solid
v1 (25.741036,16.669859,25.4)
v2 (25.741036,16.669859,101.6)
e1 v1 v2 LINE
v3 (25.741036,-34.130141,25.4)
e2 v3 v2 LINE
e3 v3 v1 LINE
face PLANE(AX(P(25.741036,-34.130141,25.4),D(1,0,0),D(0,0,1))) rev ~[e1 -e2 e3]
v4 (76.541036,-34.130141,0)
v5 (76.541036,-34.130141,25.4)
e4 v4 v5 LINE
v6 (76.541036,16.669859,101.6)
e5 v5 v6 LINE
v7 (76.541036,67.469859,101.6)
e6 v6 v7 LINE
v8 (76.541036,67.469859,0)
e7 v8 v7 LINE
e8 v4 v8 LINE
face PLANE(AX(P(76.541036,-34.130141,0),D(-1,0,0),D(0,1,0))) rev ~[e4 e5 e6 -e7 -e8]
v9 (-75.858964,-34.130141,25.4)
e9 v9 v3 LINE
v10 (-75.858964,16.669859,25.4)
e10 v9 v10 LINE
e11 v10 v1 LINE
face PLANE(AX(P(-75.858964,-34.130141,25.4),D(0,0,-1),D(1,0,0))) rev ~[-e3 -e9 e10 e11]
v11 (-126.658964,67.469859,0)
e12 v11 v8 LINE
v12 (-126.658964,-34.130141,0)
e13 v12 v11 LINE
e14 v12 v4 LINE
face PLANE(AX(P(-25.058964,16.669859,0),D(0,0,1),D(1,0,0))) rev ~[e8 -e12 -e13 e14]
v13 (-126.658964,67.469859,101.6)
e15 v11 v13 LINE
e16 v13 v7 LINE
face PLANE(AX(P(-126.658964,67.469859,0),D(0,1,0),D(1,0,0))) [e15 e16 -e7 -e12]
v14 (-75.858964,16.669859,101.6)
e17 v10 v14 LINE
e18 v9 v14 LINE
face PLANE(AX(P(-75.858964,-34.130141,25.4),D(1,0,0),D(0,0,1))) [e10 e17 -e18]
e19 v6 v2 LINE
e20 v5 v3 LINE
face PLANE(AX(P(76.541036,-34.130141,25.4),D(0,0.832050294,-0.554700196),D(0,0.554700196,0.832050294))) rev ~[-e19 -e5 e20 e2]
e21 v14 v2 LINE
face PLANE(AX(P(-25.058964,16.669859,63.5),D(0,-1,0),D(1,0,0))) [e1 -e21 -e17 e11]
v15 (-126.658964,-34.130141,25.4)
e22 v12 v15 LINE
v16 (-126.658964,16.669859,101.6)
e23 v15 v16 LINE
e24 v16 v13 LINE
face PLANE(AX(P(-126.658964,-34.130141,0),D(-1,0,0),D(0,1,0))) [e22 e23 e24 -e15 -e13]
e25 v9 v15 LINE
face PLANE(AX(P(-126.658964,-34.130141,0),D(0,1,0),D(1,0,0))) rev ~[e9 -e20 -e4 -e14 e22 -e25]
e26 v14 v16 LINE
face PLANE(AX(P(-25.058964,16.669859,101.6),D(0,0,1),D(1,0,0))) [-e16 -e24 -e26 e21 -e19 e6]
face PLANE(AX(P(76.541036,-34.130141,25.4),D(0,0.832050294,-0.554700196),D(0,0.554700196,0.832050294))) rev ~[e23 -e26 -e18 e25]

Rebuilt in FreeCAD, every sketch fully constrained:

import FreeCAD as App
import Part
import Sketcher
from FreeCAD import Vector
Q = App.Units.Quantity

doc = App.newDocument("Part")
params = doc.addObject("Spreadsheet::Sheet", "Params")
for row, (alias, value) in enumerate([
    ("sketch1_width", "8 in"),
    ("sketch1_height", "4 in"),
    ("pad1_length", "4 in"),
    ("sketch2_width", "4 in"),
    ("sketch2_height", "3 in"),
    ("pocket1_length", "2 in"),
    ("sketch3_width", "2 in"),
    ("sketch3_height", "3 in"),
    ("pocket2_length", "8 in"),
], start=1):
    params.set(f"A{row}", alias)
    params.set(f"B{row}", "=" + value)
    params.setAlias(f"B{row}", alias)

body = doc.addObject("PartDesign::Body", "Body")

sketch1 = body.newObject("Sketcher::SketchObject", "Sketch")
sketch1.AttachmentSupport = (doc.getObject("XY_Plane"), [""])
sketch1.MapMode = "FlatFace"
sketch1.addGeometry([
    Part.LineSegment(Vector(-126.658964, 67.469859, 0), Vector(-126.658964, -34.130141, 0)),
    Part.LineSegment(Vector(-126.658964, -34.130141, 0), Vector(76.541036, -34.130141, 0)),
    Part.LineSegment(Vector(76.541036, -34.130141, 0), Vector(76.541036, 67.469859, 0)),
    Part.LineSegment(Vector(76.541036, 67.469859, 0), Vector(-126.658964, 67.469859, 0)),
], False)
sketch1.addConstraint([
    Sketcher.Constraint("Coincident", 0, 2, 1, 1),
    Sketcher.Constraint("Coincident", 1, 2, 2, 1),
    Sketcher.Constraint("Coincident", 2, 2, 3, 1),
    Sketcher.Constraint("Coincident", 3, 2, 0, 1),
    Sketcher.Constraint("Vertical", 0),
    Sketcher.Constraint("Horizontal", 1),
    Sketcher.Constraint("Vertical", 2),
    Sketcher.Constraint("Horizontal", 3),
    Sketcher.Constraint("DistanceX", 1, 1, 1, 2, Q("8 in")),
    Sketcher.Constraint("DistanceY", 0, 2, 0, 1, Q("4 in")),
    Sketcher.Constraint("DistanceY", 0, 2, -1, 1, Q("34.130141 mm")),
    Sketcher.Constraint("DistanceX", 0, 2, -1, 1, Q("126.658964 mm")),
])
sketch1.setExpression("Constraints[8]", "Params.sketch1_width")
sketch1.setExpression("Constraints[9]", "Params.sketch1_height")
pad1 = body.newObject("PartDesign::Pad", "Pad")
pad1.Profile = sketch1
pad1.setExpression("Length", "Params.pad1_length")

sketch2 = body.newObject("Sketcher::SketchObject", "Sketch001")
sketch2.AttachmentSupport = (doc.getObject("XZ_Plane"), [""])
sketch2.MapMode = "FlatFace"
sketch2.AttachmentOffset = App.Placement(Vector(0, 0, 34.130141), App.Rotation())
sketch2.addGeometry([
    Part.LineSegment(Vector(-75.858964, 101.6, 0), Vector(-75.858964, 25.4, 0)),
    Part.LineSegment(Vector(-75.858964, 25.4, 0), Vector(25.741036, 25.4, 0)),
    Part.LineSegment(Vector(25.741036, 25.4, 0), Vector(25.741036, 101.6, 0)),
    Part.LineSegment(Vector(25.741036, 101.6, 0), Vector(-75.858964, 101.6, 0)),
], False)
sketch2.addConstraint([
    Sketcher.Constraint("Coincident", 0, 2, 1, 1),
    Sketcher.Constraint("Coincident", 1, 2, 2, 1),
    Sketcher.Constraint("Coincident", 2, 2, 3, 1),
    Sketcher.Constraint("Coincident", 3, 2, 0, 1),
    Sketcher.Constraint("Vertical", 0),
    Sketcher.Constraint("Horizontal", 1),
    Sketcher.Constraint("Vertical", 2),
    Sketcher.Constraint("Horizontal", 3),
    Sketcher.Constraint("DistanceX", 1, 1, 1, 2, Q("4 in")),
    Sketcher.Constraint("DistanceY", 0, 2, 0, 1, Q("3 in")),
    Sketcher.Constraint("DistanceY", -1, 1, 0, 2, Q("1 in")),
    Sketcher.Constraint("DistanceX", 0, 2, -1, 1, Q("75.858964 mm")),
])
sketch2.setExpression("Constraints[8]", "Params.sketch2_width")
sketch2.setExpression("Constraints[9]", "Params.sketch2_height")
pocket1 = body.newObject("PartDesign::Pocket", "Pocket")
pocket1.Profile = sketch2
pocket1.setExpression("Length", "Params.pocket1_length")

sketch3 = body.newObject("Sketcher::SketchObject", "Sketch002")
sketch3.AttachmentSupport = (doc.getObject("YZ_Plane"), [""])
sketch3.MapMode = "FlatFace"
sketch3.AttachmentOffset = App.Placement(Vector(0, 0, 76.541036), App.Rotation())
sketch3.addGeometry([
    Part.LineSegment(Vector(-34.130141, 101.6, 0), Vector(-34.130141, 25.4, 0)),
    Part.LineSegment(Vector(-34.130141, 25.4, 0), Vector(16.669859, 101.6, 0)),
    Part.LineSegment(Vector(16.669859, 101.6, 0), Vector(-34.130141, 101.6, 0)),
], False)
sketch3.addConstraint([
    Sketcher.Constraint("Coincident", 0, 2, 1, 1),
    Sketcher.Constraint("Coincident", 1, 2, 2, 1),
    Sketcher.Constraint("Coincident", 2, 2, 0, 1),
    Sketcher.Constraint("Vertical", 0),
    Sketcher.Constraint("Horizontal", 2),
    Sketcher.Constraint("DistanceX", 2, 2, 2, 1, Q("2 in")),
    Sketcher.Constraint("DistanceY", 0, 2, 0, 1, Q("3 in")),
    Sketcher.Constraint("DistanceY", -1, 1, 0, 2, Q("1 in")),
    Sketcher.Constraint("DistanceX", 0, 2, -1, 1, Q("34.130141 mm")),
])
sketch3.setExpression("Constraints[5]", "Params.sketch3_width")
sketch3.setExpression("Constraints[6]", "Params.sketch3_height")
pocket2 = body.newObject("PartDesign::Pocket", "Pocket001")
pocket2.Profile = sketch3
pocket2.setExpression("Length", "Params.pocket2_length")

doc.recompute()
